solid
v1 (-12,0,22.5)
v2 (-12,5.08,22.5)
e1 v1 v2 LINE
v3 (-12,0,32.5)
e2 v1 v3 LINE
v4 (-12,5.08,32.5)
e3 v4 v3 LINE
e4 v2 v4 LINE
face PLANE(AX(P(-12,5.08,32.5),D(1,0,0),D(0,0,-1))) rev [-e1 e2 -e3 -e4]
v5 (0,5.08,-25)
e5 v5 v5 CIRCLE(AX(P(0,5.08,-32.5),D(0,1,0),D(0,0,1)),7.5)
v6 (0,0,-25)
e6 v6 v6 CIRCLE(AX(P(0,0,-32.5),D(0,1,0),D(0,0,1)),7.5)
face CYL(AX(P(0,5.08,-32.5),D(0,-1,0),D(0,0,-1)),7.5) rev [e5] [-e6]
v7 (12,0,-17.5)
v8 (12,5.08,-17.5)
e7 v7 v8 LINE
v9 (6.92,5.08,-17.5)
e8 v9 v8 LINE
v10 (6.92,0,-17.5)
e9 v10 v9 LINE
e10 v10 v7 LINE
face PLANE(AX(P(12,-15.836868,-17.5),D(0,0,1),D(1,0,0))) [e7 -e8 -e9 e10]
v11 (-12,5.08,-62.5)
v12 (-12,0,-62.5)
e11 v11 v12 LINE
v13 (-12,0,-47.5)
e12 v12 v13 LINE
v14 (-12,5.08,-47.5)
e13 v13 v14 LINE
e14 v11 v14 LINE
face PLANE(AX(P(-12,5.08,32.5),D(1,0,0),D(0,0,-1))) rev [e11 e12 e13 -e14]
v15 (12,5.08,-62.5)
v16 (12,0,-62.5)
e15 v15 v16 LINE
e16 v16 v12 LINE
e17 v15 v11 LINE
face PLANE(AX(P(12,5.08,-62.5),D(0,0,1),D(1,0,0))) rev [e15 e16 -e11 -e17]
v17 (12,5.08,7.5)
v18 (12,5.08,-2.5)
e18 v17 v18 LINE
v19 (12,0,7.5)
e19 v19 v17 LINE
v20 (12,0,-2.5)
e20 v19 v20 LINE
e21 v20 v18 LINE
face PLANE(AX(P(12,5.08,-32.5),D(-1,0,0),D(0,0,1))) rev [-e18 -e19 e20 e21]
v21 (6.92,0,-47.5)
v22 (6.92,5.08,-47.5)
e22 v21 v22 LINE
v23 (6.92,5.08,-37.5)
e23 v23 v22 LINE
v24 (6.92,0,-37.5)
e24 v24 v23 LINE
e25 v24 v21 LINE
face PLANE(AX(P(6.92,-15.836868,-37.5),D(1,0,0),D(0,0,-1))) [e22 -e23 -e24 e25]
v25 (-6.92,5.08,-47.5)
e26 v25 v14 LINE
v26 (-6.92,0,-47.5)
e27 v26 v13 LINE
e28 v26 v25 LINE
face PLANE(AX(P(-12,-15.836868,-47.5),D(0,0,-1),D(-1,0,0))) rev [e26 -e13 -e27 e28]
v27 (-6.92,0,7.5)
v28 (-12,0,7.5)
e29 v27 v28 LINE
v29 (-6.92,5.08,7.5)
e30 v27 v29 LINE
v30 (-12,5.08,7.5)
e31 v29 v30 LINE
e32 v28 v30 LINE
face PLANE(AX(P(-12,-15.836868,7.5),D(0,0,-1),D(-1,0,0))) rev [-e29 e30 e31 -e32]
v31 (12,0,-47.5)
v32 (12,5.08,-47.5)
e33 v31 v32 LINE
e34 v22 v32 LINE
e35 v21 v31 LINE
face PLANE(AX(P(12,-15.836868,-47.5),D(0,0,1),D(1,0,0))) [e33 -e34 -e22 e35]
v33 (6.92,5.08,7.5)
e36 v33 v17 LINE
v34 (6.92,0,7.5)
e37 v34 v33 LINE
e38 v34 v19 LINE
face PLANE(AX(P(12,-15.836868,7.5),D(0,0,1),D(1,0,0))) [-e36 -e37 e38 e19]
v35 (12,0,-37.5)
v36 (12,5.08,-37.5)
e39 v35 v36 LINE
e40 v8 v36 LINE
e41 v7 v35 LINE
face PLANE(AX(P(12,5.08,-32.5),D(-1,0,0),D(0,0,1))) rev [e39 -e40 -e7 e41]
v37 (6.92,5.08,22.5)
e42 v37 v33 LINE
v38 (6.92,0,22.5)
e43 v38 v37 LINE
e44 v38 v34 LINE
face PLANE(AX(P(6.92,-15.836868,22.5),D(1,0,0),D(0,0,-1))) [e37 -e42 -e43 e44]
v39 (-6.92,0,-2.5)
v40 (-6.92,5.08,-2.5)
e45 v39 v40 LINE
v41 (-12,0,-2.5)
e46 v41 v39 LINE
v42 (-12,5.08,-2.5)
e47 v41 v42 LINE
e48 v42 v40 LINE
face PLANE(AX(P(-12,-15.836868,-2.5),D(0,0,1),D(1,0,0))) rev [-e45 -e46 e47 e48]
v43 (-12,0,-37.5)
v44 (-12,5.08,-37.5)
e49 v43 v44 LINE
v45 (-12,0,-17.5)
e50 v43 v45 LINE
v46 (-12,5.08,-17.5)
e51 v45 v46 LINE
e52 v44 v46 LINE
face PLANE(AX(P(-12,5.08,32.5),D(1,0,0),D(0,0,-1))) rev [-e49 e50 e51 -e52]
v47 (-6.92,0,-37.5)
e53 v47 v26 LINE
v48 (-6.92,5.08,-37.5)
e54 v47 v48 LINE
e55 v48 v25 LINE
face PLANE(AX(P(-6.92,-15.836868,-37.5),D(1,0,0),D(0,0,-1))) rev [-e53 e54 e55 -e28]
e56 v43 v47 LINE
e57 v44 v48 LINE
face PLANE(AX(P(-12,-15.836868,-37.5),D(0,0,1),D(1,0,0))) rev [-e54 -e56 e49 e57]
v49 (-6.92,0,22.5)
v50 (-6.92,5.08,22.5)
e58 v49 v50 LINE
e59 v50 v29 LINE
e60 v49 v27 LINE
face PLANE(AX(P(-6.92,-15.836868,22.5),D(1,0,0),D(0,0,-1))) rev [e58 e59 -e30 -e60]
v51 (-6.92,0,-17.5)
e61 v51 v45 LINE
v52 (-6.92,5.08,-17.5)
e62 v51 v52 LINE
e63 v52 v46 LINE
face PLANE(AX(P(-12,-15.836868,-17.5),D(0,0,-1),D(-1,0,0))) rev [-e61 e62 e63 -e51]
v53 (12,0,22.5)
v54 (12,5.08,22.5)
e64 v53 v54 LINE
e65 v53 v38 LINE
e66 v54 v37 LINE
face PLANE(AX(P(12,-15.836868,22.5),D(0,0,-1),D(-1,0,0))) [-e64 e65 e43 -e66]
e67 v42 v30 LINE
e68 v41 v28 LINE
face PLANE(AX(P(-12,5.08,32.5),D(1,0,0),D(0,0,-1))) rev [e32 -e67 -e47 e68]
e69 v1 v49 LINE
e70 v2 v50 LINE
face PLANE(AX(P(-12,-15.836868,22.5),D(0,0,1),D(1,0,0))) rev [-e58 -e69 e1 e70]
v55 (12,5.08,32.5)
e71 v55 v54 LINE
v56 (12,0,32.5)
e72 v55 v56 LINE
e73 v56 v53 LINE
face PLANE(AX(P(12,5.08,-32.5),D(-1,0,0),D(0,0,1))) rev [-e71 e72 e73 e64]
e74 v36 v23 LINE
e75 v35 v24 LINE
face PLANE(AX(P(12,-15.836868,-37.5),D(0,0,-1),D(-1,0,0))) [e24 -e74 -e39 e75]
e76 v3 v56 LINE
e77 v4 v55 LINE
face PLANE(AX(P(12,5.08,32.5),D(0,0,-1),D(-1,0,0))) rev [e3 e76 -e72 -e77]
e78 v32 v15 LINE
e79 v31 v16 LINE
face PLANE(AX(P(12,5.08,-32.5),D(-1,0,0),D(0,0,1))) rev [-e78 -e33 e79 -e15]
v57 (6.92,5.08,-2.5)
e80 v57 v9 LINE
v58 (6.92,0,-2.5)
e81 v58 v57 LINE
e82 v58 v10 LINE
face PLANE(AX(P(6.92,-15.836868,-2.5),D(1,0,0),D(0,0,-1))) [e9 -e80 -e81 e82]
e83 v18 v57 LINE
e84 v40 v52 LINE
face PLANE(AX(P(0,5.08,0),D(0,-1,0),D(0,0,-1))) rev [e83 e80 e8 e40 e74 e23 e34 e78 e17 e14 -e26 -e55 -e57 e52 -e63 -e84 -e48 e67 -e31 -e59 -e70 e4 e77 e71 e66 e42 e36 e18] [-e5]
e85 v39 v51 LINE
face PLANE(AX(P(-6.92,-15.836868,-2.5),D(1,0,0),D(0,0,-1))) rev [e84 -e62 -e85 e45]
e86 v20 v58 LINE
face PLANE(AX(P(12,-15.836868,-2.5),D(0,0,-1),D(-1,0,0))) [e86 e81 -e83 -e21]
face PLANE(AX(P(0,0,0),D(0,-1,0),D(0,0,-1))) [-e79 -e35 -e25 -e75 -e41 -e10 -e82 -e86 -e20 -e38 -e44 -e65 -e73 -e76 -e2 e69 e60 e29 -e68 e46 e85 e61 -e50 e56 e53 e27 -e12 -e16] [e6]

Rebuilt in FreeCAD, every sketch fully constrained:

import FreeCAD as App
import Part
import Sketcher

doc = App.newDocument("Part")
body = doc.addObject("PartDesign::Body", "Body")

# Sketch on XZ plane
sketch1 = doc.addObject("Sketcher::SketchObject", "Sketch")
body.addObject(sketch1)
sketch1.AttachmentSupport = (doc.XZ_Plane, [""])
sketch1.MapMode = "FlatFace"
sketch1.addGeometry([
    Part.LineSegment(App.Vector(-12, 32, 0), App.Vector(12, 32, 0)),  # 0
    Part.LineSegment(App.Vector(12, 32, 0), App.Vector(12, -62, 0)),  # 1
    Part.LineSegment(App.Vector(12, -62, 0), App.Vector(-12, -62, 0)),  # 2
    Part.LineSegment(App.Vector(-12, -62, 0), App.Vector(-12, 32, 0)),  # 3
    Part.Circle(App.Vector(0, -32, 0), App.Vector(0, 0, 1), 8),  # 4
], False)
sketch1.addConstraint([
    Sketcher.Constraint("Coincident", 0, 2, 1, 1),
    Sketcher.Constraint("Coincident", 1, 2, 2, 1),
    Sketcher.Constraint("Coincident", 2, 2, 3, 1),
    Sketcher.Constraint("Coincident", 3, 2, 0, 1),
    Sketcher.Constraint("Horizontal", 0),
    Sketcher.Constraint("Vertical", 1),
    Sketcher.Constraint("Horizontal", 2),
    Sketcher.Constraint("Vertical", 3),
    Sketcher.Constraint("PointOnObject", 4, 3, -2),
    Sketcher.Constraint("Diameter", 4, 15.0),
    Sketcher.Constraint("DistanceX", 0, 1, 0, 2, 24.0),
    Sketcher.Constraint("DistanceY", 1, 2, 1, 1, 95.0),
    Sketcher.Constraint("DistanceX", -1, 1, 0, 2, 12.0),
    Sketcher.Constraint("DistanceY", 4, 3, 0, 2, 65.0),
    Sketcher.Constraint("DistanceY", 4, 3, -1, 1, 32.5),
])
pad1 = doc.addObject("PartDesign::Pad", "Pad")
body.addObject(pad1)
pad1.Profile = sketch1
pad1.Length = 5.08
pad1.Reversed = True

# Sketch on XZ plane
sketch2 = doc.addObject("Sketcher::SketchObject", "Sketch001")
body.addObject(sketch2)
sketch2.AttachmentSupport = (doc.XZ_Plane, [""])
sketch2.MapMode = "FlatFace"
sketch2.AttachmentOffset = App.Placement(App.Vector(0, 0, -5.08), App.Rotation())
sketch2.addGeometry([
    Part.LineSegment(App.Vector(-12, -48, 0), App.Vector(-12, -38, 0)),  # 0
    Part.LineSegment(App.Vector(-12, -38, 0), App.Vector(-7, -38, 0)),  # 1
    Part.LineSegment(App.Vector(-7, -38, 0), App.Vector(-7, -48, 0)),  # 2
    Part.LineSegment(App.Vector(-7, -48, 0), App.Vector(-12, -48, 0)),  # 3
    Part.LineSegment(App.Vector(-12, 8, 0), App.Vector(-12, 22, 0)),  # 4
    Part.LineSegment(App.Vector(-12, 22, 0), App.Vector(-7, 22, 0)),  # 5
    Part.LineSegment(App.Vector(-7, 22, 0), App.Vector(-7, 8, 0)),  # 6
    Part.LineSegment(App.Vector(-7, 8, 0), App.Vector(-12, 8, 0)),  # 7
    Part.LineSegment(App.Vector(-12, -18, 0), App.Vector(-12, -2, 0)),  # 8
    Part.LineSegment(App.Vector(-12, -2, 0), App.Vector(-7, -2, 0)),  # 9
    Part.LineSegment(App.Vector(-7, -2, 0), App.Vector(-7, -18, 0)),  # 10
    Part.LineSegment(App.Vector(-7, -18, 0), App.Vector(-12, -18, 0)),  # 11
], False)
sketch2.addConstraint([
    Sketcher.Constraint("Coincident", 0, 2, 1, 1),
    Sketcher.Constraint("Coincident", 1, 2, 2, 1),
    Sketcher.Constraint("Coincident", 2, 2, 3, 1),
    Sketcher.Constraint("Coincident", 3, 2, 0, 1),
    Sketcher.Constraint("Coincident", 4, 2, 5, 1),
    Sketcher.Constraint("Coincident", 5, 2, 6, 1),
    Sketcher.Constraint("Coincident", 6, 2, 7, 1),
    Sketcher.Constraint("Coincident", 7, 2, 4, 1),
    Sketcher.Constraint("Coincident", 8, 2, 9, 1),
    Sketcher.Constraint("Coincident", 9, 2, 10, 1),
    Sketcher.Constraint("Coincident", 10, 2, 11, 1),
    Sketcher.Constraint("Coincident", 11, 2, 8, 1),
    Sketcher.Constraint("Vertical", 0),
    Sketcher.Constraint("Horizontal", 1),
    Sketcher.Constraint("Vertical", 2),
    Sketcher.Constraint("Horizontal", 3),
    Sketcher.Constraint("Vertical", 4),
    Sketcher.Constraint("Horizontal", 5),
    Sketcher.Constraint("Vertical", 6),
    Sketcher.Constraint("Horizontal", 7),
    Sketcher.Constraint("Vertical", 8),
    Sketcher.Constraint("Horizontal", 9),
    Sketcher.Constraint("Vertical", 10),
    Sketcher.Constraint("Horizontal", 11),
    Sketcher.Constraint("Vertical", 3, 2, 4, 2),
    Sketcher.Constraint("Vertical", 2, 2, 5, 2),
    Sketcher.Constraint("Vertical", 7, 2, 8, 2),
    Sketcher.Constraint("Vertical", 6, 2, 9, 2),
    Sketcher.Constraint("Equal", 6, 8),
    Sketcher.Constraint("DistanceY", 0, 1, 0, 2, 10.0),
    Sketcher.Constraint("DistanceY", 4, 1, 4, 2, 15.0),
    Sketcher.Constraint("DistanceX", 0, 2, -1, 1, 12.0),
    Sketcher.Constraint("DistanceY", 0, 2, 4, 2, 60.0),
    Sketcher.Constraint("DistanceY", 8, 2, 7, 2, 10.0),
    Sketcher.Constraint("DistanceX", 1, 1, 1, 2, 5.08),
    Sketcher.Constraint("DistanceY", 0, 2, -1, 1, 37.5),
])
pocket1 = doc.addObject("PartDesign::Pocket", "Pocket")
body.addObject(pocket1)
pocket1.Profile = sketch2
pocket1.Length = 5.08
pocket1.Reversed = True
doc.recompute()

mirrored = doc.addObject("PartDesign::Mirrored", "Mirrored")
body.addObject(mirrored)
mirrored.Originals = [pocket1]
mirrored.MirrorPlane = (doc.YZ_Plane, [""])
body.Tip = mirrored

doc.recompute()
